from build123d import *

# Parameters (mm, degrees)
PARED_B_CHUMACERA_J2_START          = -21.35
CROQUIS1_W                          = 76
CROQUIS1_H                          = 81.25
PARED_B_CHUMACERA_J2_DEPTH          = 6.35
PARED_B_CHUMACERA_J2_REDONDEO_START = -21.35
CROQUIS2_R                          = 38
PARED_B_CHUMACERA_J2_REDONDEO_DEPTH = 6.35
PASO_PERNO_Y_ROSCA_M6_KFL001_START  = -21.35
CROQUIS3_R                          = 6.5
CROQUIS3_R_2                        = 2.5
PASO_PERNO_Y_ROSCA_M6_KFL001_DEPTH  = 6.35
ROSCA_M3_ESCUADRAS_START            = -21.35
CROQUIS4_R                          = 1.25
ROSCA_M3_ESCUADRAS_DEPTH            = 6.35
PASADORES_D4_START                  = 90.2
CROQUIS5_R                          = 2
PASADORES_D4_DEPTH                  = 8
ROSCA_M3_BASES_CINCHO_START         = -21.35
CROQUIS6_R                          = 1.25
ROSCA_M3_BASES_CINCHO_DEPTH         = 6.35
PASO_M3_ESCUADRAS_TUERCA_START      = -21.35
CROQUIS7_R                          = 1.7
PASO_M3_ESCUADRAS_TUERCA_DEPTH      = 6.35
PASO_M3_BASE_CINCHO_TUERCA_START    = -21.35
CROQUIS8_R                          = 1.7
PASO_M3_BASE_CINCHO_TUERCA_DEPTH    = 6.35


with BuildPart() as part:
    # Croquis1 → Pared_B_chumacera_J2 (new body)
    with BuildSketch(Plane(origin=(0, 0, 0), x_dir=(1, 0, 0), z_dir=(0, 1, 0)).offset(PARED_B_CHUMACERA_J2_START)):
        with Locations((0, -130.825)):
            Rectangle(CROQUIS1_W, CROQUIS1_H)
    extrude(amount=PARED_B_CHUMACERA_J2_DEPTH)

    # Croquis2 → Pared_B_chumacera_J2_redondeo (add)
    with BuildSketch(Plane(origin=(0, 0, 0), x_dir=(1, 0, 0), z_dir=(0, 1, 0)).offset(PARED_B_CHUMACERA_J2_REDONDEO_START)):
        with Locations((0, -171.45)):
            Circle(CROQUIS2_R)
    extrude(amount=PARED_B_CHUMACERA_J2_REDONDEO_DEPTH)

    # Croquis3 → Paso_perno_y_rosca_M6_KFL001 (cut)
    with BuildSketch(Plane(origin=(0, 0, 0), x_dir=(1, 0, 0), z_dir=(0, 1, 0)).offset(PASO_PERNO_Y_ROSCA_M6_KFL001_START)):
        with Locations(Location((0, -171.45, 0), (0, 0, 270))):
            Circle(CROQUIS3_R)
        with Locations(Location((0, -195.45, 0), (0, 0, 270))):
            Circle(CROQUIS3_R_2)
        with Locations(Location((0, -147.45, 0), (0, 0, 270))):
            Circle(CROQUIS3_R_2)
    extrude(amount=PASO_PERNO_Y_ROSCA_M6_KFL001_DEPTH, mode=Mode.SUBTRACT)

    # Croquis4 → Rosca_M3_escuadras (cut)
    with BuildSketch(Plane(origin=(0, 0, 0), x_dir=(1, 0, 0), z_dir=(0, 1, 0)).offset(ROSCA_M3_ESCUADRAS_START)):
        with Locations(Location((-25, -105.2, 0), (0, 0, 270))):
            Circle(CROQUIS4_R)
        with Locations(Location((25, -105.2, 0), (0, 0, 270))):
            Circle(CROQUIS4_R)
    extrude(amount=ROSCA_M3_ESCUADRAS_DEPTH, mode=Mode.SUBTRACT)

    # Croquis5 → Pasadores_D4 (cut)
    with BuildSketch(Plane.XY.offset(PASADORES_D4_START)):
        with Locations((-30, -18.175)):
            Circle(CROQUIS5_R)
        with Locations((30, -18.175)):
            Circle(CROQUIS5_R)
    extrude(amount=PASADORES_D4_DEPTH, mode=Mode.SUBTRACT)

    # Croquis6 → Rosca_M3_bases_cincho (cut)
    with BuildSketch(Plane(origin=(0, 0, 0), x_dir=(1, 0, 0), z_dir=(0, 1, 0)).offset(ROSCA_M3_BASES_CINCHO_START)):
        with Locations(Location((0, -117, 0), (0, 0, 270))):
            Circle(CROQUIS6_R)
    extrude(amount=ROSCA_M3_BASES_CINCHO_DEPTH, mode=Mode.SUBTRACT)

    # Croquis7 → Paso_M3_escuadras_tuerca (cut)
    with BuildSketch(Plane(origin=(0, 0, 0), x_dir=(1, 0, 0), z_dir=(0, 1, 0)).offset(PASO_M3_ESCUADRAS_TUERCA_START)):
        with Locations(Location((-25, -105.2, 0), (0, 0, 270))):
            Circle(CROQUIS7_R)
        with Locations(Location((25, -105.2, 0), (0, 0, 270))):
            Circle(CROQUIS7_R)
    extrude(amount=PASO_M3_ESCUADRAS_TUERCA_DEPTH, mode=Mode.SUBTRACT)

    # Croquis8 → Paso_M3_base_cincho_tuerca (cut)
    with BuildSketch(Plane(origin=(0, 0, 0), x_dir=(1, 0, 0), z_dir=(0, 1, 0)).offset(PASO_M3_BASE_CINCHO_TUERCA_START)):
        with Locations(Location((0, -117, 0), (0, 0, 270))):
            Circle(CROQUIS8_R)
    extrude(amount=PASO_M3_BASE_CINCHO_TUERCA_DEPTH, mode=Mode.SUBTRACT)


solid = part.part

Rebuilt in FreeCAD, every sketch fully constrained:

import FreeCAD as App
import Part
import Sketcher

V = App.Vector
Q = App.Units.Quantity


def add_polygon(sketch, points):
    """Adds a closed chain of lines whose ends are joined by coincident constraints."""
    first, n = sketch.GeometryCount, len(points)
    for a, b in zip(points, points[1:] + points[:1]):
        sketch.addGeometry(Part.LineSegment(App.Vector(*a, 0), App.Vector(*b, 0)), False)
    for i in range(n):
        sketch.addConstraint(Sketcher.Constraint("Coincident", first + i, 2, first + (i + 1) % n, 1))

doc = App.newDocument("Part")
body = doc.addObject("PartDesign::Body", "Body")

# Sketch on XZ plane
sketch1 = body.newObject("Sketcher::SketchObject", "Sketch")
sketch1.AttachmentSupport = (doc.getObject("XZ_Plane"), [""])
sketch1.MapMode = "FlatFace"
sketch1.AttachmentOffset = App.Placement(V(0, 0, 21.35), App.Rotation())
add_polygon(sketch1, [(-38, 90), (-38, 171), (38, 171), (38, 90)])  # lines 0-3
sketch1.addConstraint([
    Sketcher.Constraint("Vertical", 0),
    Sketcher.Constraint("Horizontal", 1),
    Sketcher.Constraint("Vertical", 2),
    Sketcher.Constraint("Horizontal", 3),
    Sketcher.Constraint("DistanceX", 1, 1, 1, 2, Q("76 mm")),
    Sketcher.Constraint("DistanceX", 0, 2, -1, 1, Q("38 mm")),
    Sketcher.Constraint("DistanceY", 0, 1, 0, 2, Q("81.25 mm")),
    Sketcher.Constraint("DistanceY", -1, 1, 2, 2, Q("90.2 mm")),
])
pad1 = body.newObject("PartDesign::Pad", "Pad")
pad1.Profile = sketch1
pad1.Length = 6.35
pad1.Reversed = True

# Sketch on XZ plane
sketch2 = body.newObject("Sketcher::SketchObject", "Sketch001")
sketch2.AttachmentSupport = (doc.getObject("XZ_Plane"), [""])
sketch2.MapMode = "FlatFace"
sketch2.AttachmentOffset = App.Placement(V(0, 0, 21.35), App.Rotation())
sketch2.addGeometry(Part.Circle(V(0, 171, 0), V(0, 0, 1), 38), False)
sketch2.addConstraint([
    Sketcher.Constraint("PointOnObject", 0, 3, -2),
    Sketcher.Constraint("Diameter", 0, Q("76 mm")),
    Sketcher.Constraint("DistanceY", -1, 1, 0, 3, Q("171.45 mm")),
])
pad2 = body.newObject("PartDesign::Pad", "Pad001")
pad2.Profile = sketch2
pad2.Length = 6.35
pad2.Reversed = True

# Sketch on XZ plane
sketch3 = body.newObject("Sketcher::SketchObject", "Sketch002")
sketch3.AttachmentSupport = (doc.getObject("XZ_Plane"), [""])
sketch3.MapMode = "FlatFace"
sketch3.AttachmentOffset = App.Placement(V(0, 0, 21.35), App.Rotation())
sketch3.addGeometry([
    Part.Circle(V(0, 171.4, 0), V(0, 0, 1), 6.5),
    Part.Circle(V(0, 195.4, 0), V(0, 0, 1), 2.5),
    Part.Circle(V(0, 147.4, 0), V(0, 0, 1), 2.5),
], False)
sketch3.addConstraint([
    Sketcher.Constraint("Equal", 1, 2),
    Sketcher.Constraint("PointOnObject", 0, 3, -2),
    Sketcher.Constraint("PointOnObject", 1, 3, -2),
    Sketcher.Constraint("PointOnObject", 2, 3, -2),
    Sketcher.Constraint("Diameter", 0, Q("13 mm")),
    Sketcher.Constraint("Diameter", 1, Q("5 mm")),
    Sketcher.Constraint("DistanceY", 0, 3, 1, 3, Q("24 mm")),
    Sketcher.Constraint("DistanceY", 2, 3, 0, 3, Q("24 mm")),
    Sketcher.Constraint("DistanceY", -1, 1, 0, 3, Q("171.45 mm")),
])
pocket1 = body.newObject("PartDesign::Pocket", "Pocket")
pocket1.Profile = sketch3
pocket1.Length = 6.35

# Sketch on XZ plane
sketch4 = body.newObject("Sketcher::SketchObject", "Sketch003")
sketch4.AttachmentSupport = (doc.getObject("XZ_Plane"), [""])
sketch4.MapMode = "FlatFace"
sketch4.AttachmentOffset = App.Placement(V(0, 0, 21.35), App.Rotation())
sketch4.addGeometry([
    Part.Circle(V(-25, 105.2, 0), V(0, 0, 1), 1.2),
    Part.Circle(V(25, 105.2, 0), V(0, 0, 1), 1.2),
], False)
sketch4.addConstraint([
    Sketcher.Constraint("Equal", 0, 1),
    Sketcher.Constraint("Symmetric", 0, 3, 1, 3, -2),
    Sketcher.Constraint("Diameter", 0, Q("2.5 mm")),
    Sketcher.Constraint("DistanceX", 0, 3, -1, 1, Q("25 mm")),
    Sketcher.Constraint("DistanceY", -1, 1, 0, 3, Q("105.2 mm")),
])
pocket2 = body.newObject("PartDesign::Pocket", "Pocket001")
pocket2.Profile = sketch4
pocket2.Length = 6.35

# Sketch on XY plane
sketch5 = body.newObject("Sketcher::SketchObject", "Sketch004")
sketch5.AttachmentSupport = (doc.getObject("XY_Plane"), [""])
sketch5.MapMode = "FlatFace"
sketch5.AttachmentOffset = App.Placement(V(0, 0, 90.2), App.Rotation())
sketch5.addGeometry([
    Part.Circle(V(-30, -18.2, 0), V(0, 0, 1), 2),
    Part.Circle(V(30, -18.2, 0), V(0, 0, 1), 2),
], False)
sketch5.addConstraint([
    Sketcher.Constraint("Equal", 0, 1),
    Sketcher.Constraint("Symmetric", 0, 3, 1, 3, -2),
    Sketcher.Constraint("Diameter", 0, Q("4 mm")),
    Sketcher.Constraint("DistanceX", 0, 3, -1, 1, Q("30 mm")),
    Sketcher.Constraint("DistanceY", 0, 3, -1, 1, Q("18.175 mm")),
])
pocket3 = body.newObject("PartDesign::Pocket", "Pocket002")
pocket3.Profile = sketch5
pocket3.Length = 8
pocket3.Reversed = True

# Sketch on XZ plane
sketch6 = body.newObject("Sketcher::SketchObject", "Sketch005")
sketch6.AttachmentSupport = (doc.getObject("XZ_Plane"), [""])
sketch6.MapMode = "FlatFace"
sketch6.AttachmentOffset = App.Placement(V(0, 0, 21.35), App.Rotation())
sketch6.addGeometry(Part.Circle(V(0, 117, 0), V(0, 0, 1), 1.2), False)
sketch6.addConstraint([
    Sketcher.Constraint("PointOnObject", 0, 3, -2),
    Sketcher.Constraint("Diameter", 0, Q("2.5 mm")),
    Sketcher.Constraint("DistanceY", -1, 1, 0, 3, Q("117 mm")),
])
pocket4 = body.newObject("PartDesign::Pocket", "Pocket003")
pocket4.Profile = sketch6
pocket4.Length = 6.35

# Sketch on XZ plane
sketch7 = body.newObject("Sketcher::SketchObject", "Sketch006")
sketch7.AttachmentSupport = (doc.getObject("XZ_Plane"), [""])
sketch7.MapMode = "FlatFace"
sketch7.AttachmentOffset = App.Placement(V(0, 0, 21.35), App.Rotation())
sketch7.addGeometry([
    Part.Circle(V(-25, 105.2, 0), V(0, 0, 1), 1.7),
    Part.Circle(V(25, 105.2, 0), V(0, 0, 1), 1.7),
], False)
sketch7.addConstraint([
    Sketcher.Constraint("Equal", 0, 1),
    Sketcher.Constraint("Symmetric", 0, 3, 1, 3, -2),
    Sketcher.Constraint("Diameter", 0, Q("3.4 mm")),
    Sketcher.Constraint("DistanceX", 0, 3, -1, 1, Q("25 mm")),
    Sketcher.Constraint("DistanceY", -1, 1, 0, 3, Q("105.2 mm")),
])
pocket5 = body.newObject("PartDesign::Pocket", "Pocket004")
pocket5.Profile = sketch7
pocket5.Length = 6.35

# Sketch on XZ plane
sketch8 = body.newObject("Sketcher::SketchObject", "Sketch007")
sketch8.AttachmentSupport = (doc.getObject("XZ_Plane"), [""])
sketch8.MapMode = "FlatFace"
sketch8.AttachmentOffset = App.Placement(V(0, 0, 21.35), App.Rotation())
sketch8.addGeometry(Part.Circle(V(0, 117, 0), V(0, 0, 1), 1.7), False)
sketch8.addConstraint([
    Sketcher.Constraint("PointOnObject", 0, 3, -2),
    Sketcher.Constraint("Diameter", 0, Q("3.4 mm")),
    Sketcher.Constraint("DistanceY", -1, 1, 0, 3, Q("117 mm")),
])
pocket6 = body.newObject("PartDesign::Pocket", "Pocket005")
pocket6.Profile = sketch8
pocket6.Length = 6.35

doc.recompute()
